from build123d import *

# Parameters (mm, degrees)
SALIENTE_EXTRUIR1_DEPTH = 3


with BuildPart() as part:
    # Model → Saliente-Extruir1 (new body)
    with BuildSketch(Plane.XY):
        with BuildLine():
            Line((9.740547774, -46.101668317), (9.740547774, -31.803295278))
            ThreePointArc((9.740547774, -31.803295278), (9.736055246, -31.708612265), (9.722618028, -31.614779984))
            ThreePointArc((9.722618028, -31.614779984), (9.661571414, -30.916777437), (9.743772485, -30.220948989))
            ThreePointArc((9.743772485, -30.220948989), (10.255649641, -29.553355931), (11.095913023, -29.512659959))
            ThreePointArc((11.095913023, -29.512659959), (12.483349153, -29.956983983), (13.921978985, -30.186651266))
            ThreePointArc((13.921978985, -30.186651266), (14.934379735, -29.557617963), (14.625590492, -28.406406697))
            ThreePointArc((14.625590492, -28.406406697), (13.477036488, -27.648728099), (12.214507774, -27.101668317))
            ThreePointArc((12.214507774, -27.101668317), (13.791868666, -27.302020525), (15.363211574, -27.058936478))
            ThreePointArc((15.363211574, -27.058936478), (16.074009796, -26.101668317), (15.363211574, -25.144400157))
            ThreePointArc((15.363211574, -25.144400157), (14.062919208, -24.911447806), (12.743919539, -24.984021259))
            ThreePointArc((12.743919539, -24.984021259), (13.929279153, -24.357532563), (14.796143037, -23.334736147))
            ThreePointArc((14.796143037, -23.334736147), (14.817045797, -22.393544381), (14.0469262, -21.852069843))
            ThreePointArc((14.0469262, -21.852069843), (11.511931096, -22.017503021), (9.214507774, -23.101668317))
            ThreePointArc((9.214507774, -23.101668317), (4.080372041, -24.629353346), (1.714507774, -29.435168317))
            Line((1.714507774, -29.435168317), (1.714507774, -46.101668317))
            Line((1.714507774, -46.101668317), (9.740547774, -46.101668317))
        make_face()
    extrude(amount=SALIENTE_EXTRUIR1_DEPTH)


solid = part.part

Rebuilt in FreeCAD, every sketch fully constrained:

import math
import FreeCAD as App
import Part
import Sketcher

V = App.Vector
Q = App.Units.Quantity

doc = App.newDocument("Part")
body = doc.addObject("PartDesign::Body", "Body")

sketch1 = body.newObject("Sketcher::SketchObject", "Sketch")
sketch1.AttachmentSupport = (doc.getObject("XY_Plane"), [""])
sketch1.MapMode = "FlatFace"
sketch1.addGeometry(Part.LineSegment(V(9.740548, -46.101668, 0), V(9.740548, -31.803295, 0)), False)
sketch1.addGeometry(Part.ArcOfCircle(Part.Circle(V(8.740548, -31.803295, 0), V(0, 0, 1), 1), math.radians(0), math.radians(10.866151)), False)
sketch1.addGeometry(Part.ArcOfCircle(Part.Circle(V(13.087953, -30.96878, 0), V(0, 0, 1), 3.426776), math.radians(167.394803), math.radians(190.866151)), False)
sketch1.addGeometry(Part.ArcOfCircle(Part.Circle(V(10.719669, -30.439181, 0), V(0, 0, 1), 1), math.radians(67.898806), math.radians(167.394803)), False)
sketch1.addGeometry(Part.ArcOfCircle(Part.Circle(V(14.714508, -20.601668, 0), V(0, 0, 1), 9.617692), math.radians(-112.101194), math.radians(-94.726716)), False)
sketch1.addGeometry(Part.ArcOfCircle(Part.Circle(V(14.004382, -29.190052, 0), V(0, 0, 1), 1), math.radians(-94.726716), math.radians(51.595576)), False)
sketch1.addGeometry(Part.ArcOfCircle(Part.Circle(V(9.714508, -34.601668, 0), V(0, 0, 1), 7.905694), math.radians(51.595576), math.radians(71.565051)), False)
sketch1.addGeometry(Part.ArcOfCircle(Part.Circle(V(13.714508, -21.601668, 0), V(0, 0, 1), 5.700877), math.radians(-105.255119), math.radians(-73.189826)), False)
sketch1.addGeometry(Part.ArcOfCircle(Part.Circle(V(15.07401, -26.101668, 0), V(0, 0, 1), 1), math.radians(-73.189826), math.radians(73.189826)), False)
sketch1.addGeometry(Part.ArcOfCircle(Part.Circle(V(13.714508, -30.601668, 0), V(0, 0, 1), 5.700877), math.radians(73.189826), math.radians(99.802497)), False)
sketch1.addGeometry(Part.ArcOfCircle(Part.Circle(V(11.714508, -21.601668, 0), V(0, 0, 1), 3.535534), math.radians(-73.072487), math.radians(-29.352782)), False)
sketch1.addGeometry(Part.ArcOfCircle(Part.Circle(V(13.924525, -22.844551, 0), V(0, 0, 1), 1), math.radians(-29.352782), math.radians(82.969295)), False)
sketch1.addGeometry(Part.ArcOfCircle(Part.Circle(V(13.214508, -28.601668, 0), V(0, 0, 1), 6.800735), math.radians(82.969295), math.radians(126.027373)), False)
sketch1.addGeometry(Part.ArcOfCircle(Part.Circle(V(8.395027, -29.738679, 0), V(0, 0, 1), 6.687411), math.radians(82.96124), math.radians(177.398714)), False)
sketch1.addGeometry(Part.LineSegment(V(1.714508, -29.435168, 0), V(1.714508, -46.101668, 0)), False)
sketch1.addGeometry(Part.LineSegment(V(1.714508, -46.101668, 0), V(9.740548, -46.101668, 0)), False)
sketch1.addConstraint(Sketcher.Constraint("Tangent", 0, 2, 1, 1))
sketch1.addConstraint(Sketcher.Constraint("Tangent", 1, 2, 2, 2))
sketch1.addConstraint(Sketcher.Constraint("Tangent", 2, 1, 3, 2))
sketch1.addConstraint(Sketcher.Constraint("Tangent", 3, 1, 4, 1))
sketch1.addConstraint(Sketcher.Constraint("Tangent", 4, 2, 5, 1))
sketch1.addConstraint(Sketcher.Constraint("Tangent", 5, 2, 6, 1))
sketch1.addConstraint(Sketcher.Constraint("Coincident", 6, 2, 7, 1))
sketch1.addConstraint(Sketcher.Constraint("Tangent", 7, 2, 8, 1))
sketch1.addConstraint(Sketcher.Constraint("Tangent", 8, 2, 9, 1))
sketch1.addConstraint(Sketcher.Constraint("Coincident", 9, 2, 10, 1))
sketch1.addConstraint(Sketcher.Constraint("Tangent", 10, 2, 11, 1))
sketch1.addConstraint(Sketcher.Constraint("Tangent", 11, 2, 12, 1))
sketch1.addConstraint(Sketcher.Constraint("Coincident", 12, 2, 13, 1))
sketch1.addConstraint(Sketcher.Constraint("Coincident", 13, 2, 14, 1))
sketch1.addConstraint(Sketcher.Constraint("Coincident", 14, 2, 15, 1))
sketch1.addConstraint(Sketcher.Constraint("Coincident", 15, 2, 0, 1))
sketch1.addConstraint(Sketcher.Constraint("Vertical", 0))
sketch1.addConstraint(Sketcher.Constraint("Vertical", 14))
sketch1.addConstraint(Sketcher.Constraint("Horizontal", 15))
sketch1.addConstraint(Sketcher.Constraint("Equal", 1, 3))
sketch1.addConstraint(Sketcher.Constraint("Equal", 3, 5))
sketch1.addConstraint(Sketcher.Constraint("Equal", 5, 8))
sketch1.addConstraint(Sketcher.Constraint("Equal", 7, 9))
sketch1.addConstraint(Sketcher.Constraint("Equal", 8, 11))
sketch1.addConstraint(Sketcher.Constraint("Horizontal", 7, 3, 10, 3))
sketch1.addConstraint(Sketcher.Constraint("Vertical", 7, 3, 9, 3))
sketch1.addConstraint(Sketcher.Constraint("Radius", 1, Q("1 mm")))
sketch1.addConstraint(Sketcher.Constraint("DistanceX", 6, 3, 4, 3, Q("5 mm")))
sketch1.addConstraint(Sketcher.Constraint("DistanceY", 6, 3, 4, 3, Q("14 mm")))
sketch1.addConstraint(Sketcher.Constraint("DistanceX", 7, 3, 4, 3, Q("1 mm")))
sketch1.addConstraint(Sketcher.Constraint("DistanceY", 7, 3, 4, 3, Q("1 mm")))
sketch1.addConstraint(Sketcher.Constraint("DistanceX", 10, 3, 7, 3, Q("2 mm")))
sketch1.addConstraint(Sketcher.Constraint("DistanceY", 9, 3, 12, 3, Q("2 mm")))
sketch1.addConstraint(Sketcher.Constraint("DistanceX", 6, 2, 12, 3, Q("1 mm")))
sketch1.addConstraint(Sketcher.Constraint("DistanceY", 6, 2, 8, 3, Q("1 mm")))
sketch1.addConstraint(Sketcher.Constraint("DistanceX", 14, 2, 6, 3, Q("8 mm")))
sketch1.addConstraint(Sketcher.Constraint("DistanceY", 8, 3, 7, 3, Q("4.5 mm")))
sketch1.addConstraint(Sketcher.Constraint("DistanceX", 12, 3, 9, 3, Q("0.5 mm")))
sketch1.addConstraint(Sketcher.Constraint("DistanceX", 12, 2, 10, 3, Q("2.5 mm")))
sketch1.addConstraint(Sketcher.Constraint("DistanceY", 12, 2, 10, 3, Q("1.5 mm")))
sketch1.addConstraint(Sketcher.Constraint("DistanceY", 14, 2, 6, 3, Q("11.5 mm")))
sketch1.addConstraint(Sketcher.Constraint("Radius", 13, Q("6.687411 mm")))
sketch1.addConstraint(Sketcher.Constraint("DistanceY", 14, 2, 14, 1, Q("16.6665 mm")))
sketch1.addConstraint(Sketcher.Constraint("Radius", 2, Q("3.426776 mm")))
sketch1.addConstraint(Sketcher.Constraint("Radius", 4, Q("9.617692 mm")))
sketch1.addConstraint(Sketcher.Constraint("Radius", 10, Q("3.535534 mm")))
sketch1.addConstraint(Sketcher.Constraint("DistanceX", 15, 1, 15, 2, Q("8.02604 mm")))
sketch1.addConstraint(Sketcher.Constraint("DistanceY", 8, 2, -1, 1, Q("25.1444 mm")))
sketch1.addConstraint(Sketcher.Constraint("DistanceY", 2, 3, 3, 3, Q("0.5296 mm")))
sketch1.addConstraint(Sketcher.Constraint("DistanceY", 3, 3, 13, 3, Q("0.700502 mm")))
sketch1.addConstraint(Sketcher.Constraint("DistanceX", -1, 1, 3, 3, Q("10.719669 mm")))
pad1 = body.newObject("PartDesign::Pad", "Pad")
pad1.Profile = sketch1
pad1.Length = 3

doc.recompute()
